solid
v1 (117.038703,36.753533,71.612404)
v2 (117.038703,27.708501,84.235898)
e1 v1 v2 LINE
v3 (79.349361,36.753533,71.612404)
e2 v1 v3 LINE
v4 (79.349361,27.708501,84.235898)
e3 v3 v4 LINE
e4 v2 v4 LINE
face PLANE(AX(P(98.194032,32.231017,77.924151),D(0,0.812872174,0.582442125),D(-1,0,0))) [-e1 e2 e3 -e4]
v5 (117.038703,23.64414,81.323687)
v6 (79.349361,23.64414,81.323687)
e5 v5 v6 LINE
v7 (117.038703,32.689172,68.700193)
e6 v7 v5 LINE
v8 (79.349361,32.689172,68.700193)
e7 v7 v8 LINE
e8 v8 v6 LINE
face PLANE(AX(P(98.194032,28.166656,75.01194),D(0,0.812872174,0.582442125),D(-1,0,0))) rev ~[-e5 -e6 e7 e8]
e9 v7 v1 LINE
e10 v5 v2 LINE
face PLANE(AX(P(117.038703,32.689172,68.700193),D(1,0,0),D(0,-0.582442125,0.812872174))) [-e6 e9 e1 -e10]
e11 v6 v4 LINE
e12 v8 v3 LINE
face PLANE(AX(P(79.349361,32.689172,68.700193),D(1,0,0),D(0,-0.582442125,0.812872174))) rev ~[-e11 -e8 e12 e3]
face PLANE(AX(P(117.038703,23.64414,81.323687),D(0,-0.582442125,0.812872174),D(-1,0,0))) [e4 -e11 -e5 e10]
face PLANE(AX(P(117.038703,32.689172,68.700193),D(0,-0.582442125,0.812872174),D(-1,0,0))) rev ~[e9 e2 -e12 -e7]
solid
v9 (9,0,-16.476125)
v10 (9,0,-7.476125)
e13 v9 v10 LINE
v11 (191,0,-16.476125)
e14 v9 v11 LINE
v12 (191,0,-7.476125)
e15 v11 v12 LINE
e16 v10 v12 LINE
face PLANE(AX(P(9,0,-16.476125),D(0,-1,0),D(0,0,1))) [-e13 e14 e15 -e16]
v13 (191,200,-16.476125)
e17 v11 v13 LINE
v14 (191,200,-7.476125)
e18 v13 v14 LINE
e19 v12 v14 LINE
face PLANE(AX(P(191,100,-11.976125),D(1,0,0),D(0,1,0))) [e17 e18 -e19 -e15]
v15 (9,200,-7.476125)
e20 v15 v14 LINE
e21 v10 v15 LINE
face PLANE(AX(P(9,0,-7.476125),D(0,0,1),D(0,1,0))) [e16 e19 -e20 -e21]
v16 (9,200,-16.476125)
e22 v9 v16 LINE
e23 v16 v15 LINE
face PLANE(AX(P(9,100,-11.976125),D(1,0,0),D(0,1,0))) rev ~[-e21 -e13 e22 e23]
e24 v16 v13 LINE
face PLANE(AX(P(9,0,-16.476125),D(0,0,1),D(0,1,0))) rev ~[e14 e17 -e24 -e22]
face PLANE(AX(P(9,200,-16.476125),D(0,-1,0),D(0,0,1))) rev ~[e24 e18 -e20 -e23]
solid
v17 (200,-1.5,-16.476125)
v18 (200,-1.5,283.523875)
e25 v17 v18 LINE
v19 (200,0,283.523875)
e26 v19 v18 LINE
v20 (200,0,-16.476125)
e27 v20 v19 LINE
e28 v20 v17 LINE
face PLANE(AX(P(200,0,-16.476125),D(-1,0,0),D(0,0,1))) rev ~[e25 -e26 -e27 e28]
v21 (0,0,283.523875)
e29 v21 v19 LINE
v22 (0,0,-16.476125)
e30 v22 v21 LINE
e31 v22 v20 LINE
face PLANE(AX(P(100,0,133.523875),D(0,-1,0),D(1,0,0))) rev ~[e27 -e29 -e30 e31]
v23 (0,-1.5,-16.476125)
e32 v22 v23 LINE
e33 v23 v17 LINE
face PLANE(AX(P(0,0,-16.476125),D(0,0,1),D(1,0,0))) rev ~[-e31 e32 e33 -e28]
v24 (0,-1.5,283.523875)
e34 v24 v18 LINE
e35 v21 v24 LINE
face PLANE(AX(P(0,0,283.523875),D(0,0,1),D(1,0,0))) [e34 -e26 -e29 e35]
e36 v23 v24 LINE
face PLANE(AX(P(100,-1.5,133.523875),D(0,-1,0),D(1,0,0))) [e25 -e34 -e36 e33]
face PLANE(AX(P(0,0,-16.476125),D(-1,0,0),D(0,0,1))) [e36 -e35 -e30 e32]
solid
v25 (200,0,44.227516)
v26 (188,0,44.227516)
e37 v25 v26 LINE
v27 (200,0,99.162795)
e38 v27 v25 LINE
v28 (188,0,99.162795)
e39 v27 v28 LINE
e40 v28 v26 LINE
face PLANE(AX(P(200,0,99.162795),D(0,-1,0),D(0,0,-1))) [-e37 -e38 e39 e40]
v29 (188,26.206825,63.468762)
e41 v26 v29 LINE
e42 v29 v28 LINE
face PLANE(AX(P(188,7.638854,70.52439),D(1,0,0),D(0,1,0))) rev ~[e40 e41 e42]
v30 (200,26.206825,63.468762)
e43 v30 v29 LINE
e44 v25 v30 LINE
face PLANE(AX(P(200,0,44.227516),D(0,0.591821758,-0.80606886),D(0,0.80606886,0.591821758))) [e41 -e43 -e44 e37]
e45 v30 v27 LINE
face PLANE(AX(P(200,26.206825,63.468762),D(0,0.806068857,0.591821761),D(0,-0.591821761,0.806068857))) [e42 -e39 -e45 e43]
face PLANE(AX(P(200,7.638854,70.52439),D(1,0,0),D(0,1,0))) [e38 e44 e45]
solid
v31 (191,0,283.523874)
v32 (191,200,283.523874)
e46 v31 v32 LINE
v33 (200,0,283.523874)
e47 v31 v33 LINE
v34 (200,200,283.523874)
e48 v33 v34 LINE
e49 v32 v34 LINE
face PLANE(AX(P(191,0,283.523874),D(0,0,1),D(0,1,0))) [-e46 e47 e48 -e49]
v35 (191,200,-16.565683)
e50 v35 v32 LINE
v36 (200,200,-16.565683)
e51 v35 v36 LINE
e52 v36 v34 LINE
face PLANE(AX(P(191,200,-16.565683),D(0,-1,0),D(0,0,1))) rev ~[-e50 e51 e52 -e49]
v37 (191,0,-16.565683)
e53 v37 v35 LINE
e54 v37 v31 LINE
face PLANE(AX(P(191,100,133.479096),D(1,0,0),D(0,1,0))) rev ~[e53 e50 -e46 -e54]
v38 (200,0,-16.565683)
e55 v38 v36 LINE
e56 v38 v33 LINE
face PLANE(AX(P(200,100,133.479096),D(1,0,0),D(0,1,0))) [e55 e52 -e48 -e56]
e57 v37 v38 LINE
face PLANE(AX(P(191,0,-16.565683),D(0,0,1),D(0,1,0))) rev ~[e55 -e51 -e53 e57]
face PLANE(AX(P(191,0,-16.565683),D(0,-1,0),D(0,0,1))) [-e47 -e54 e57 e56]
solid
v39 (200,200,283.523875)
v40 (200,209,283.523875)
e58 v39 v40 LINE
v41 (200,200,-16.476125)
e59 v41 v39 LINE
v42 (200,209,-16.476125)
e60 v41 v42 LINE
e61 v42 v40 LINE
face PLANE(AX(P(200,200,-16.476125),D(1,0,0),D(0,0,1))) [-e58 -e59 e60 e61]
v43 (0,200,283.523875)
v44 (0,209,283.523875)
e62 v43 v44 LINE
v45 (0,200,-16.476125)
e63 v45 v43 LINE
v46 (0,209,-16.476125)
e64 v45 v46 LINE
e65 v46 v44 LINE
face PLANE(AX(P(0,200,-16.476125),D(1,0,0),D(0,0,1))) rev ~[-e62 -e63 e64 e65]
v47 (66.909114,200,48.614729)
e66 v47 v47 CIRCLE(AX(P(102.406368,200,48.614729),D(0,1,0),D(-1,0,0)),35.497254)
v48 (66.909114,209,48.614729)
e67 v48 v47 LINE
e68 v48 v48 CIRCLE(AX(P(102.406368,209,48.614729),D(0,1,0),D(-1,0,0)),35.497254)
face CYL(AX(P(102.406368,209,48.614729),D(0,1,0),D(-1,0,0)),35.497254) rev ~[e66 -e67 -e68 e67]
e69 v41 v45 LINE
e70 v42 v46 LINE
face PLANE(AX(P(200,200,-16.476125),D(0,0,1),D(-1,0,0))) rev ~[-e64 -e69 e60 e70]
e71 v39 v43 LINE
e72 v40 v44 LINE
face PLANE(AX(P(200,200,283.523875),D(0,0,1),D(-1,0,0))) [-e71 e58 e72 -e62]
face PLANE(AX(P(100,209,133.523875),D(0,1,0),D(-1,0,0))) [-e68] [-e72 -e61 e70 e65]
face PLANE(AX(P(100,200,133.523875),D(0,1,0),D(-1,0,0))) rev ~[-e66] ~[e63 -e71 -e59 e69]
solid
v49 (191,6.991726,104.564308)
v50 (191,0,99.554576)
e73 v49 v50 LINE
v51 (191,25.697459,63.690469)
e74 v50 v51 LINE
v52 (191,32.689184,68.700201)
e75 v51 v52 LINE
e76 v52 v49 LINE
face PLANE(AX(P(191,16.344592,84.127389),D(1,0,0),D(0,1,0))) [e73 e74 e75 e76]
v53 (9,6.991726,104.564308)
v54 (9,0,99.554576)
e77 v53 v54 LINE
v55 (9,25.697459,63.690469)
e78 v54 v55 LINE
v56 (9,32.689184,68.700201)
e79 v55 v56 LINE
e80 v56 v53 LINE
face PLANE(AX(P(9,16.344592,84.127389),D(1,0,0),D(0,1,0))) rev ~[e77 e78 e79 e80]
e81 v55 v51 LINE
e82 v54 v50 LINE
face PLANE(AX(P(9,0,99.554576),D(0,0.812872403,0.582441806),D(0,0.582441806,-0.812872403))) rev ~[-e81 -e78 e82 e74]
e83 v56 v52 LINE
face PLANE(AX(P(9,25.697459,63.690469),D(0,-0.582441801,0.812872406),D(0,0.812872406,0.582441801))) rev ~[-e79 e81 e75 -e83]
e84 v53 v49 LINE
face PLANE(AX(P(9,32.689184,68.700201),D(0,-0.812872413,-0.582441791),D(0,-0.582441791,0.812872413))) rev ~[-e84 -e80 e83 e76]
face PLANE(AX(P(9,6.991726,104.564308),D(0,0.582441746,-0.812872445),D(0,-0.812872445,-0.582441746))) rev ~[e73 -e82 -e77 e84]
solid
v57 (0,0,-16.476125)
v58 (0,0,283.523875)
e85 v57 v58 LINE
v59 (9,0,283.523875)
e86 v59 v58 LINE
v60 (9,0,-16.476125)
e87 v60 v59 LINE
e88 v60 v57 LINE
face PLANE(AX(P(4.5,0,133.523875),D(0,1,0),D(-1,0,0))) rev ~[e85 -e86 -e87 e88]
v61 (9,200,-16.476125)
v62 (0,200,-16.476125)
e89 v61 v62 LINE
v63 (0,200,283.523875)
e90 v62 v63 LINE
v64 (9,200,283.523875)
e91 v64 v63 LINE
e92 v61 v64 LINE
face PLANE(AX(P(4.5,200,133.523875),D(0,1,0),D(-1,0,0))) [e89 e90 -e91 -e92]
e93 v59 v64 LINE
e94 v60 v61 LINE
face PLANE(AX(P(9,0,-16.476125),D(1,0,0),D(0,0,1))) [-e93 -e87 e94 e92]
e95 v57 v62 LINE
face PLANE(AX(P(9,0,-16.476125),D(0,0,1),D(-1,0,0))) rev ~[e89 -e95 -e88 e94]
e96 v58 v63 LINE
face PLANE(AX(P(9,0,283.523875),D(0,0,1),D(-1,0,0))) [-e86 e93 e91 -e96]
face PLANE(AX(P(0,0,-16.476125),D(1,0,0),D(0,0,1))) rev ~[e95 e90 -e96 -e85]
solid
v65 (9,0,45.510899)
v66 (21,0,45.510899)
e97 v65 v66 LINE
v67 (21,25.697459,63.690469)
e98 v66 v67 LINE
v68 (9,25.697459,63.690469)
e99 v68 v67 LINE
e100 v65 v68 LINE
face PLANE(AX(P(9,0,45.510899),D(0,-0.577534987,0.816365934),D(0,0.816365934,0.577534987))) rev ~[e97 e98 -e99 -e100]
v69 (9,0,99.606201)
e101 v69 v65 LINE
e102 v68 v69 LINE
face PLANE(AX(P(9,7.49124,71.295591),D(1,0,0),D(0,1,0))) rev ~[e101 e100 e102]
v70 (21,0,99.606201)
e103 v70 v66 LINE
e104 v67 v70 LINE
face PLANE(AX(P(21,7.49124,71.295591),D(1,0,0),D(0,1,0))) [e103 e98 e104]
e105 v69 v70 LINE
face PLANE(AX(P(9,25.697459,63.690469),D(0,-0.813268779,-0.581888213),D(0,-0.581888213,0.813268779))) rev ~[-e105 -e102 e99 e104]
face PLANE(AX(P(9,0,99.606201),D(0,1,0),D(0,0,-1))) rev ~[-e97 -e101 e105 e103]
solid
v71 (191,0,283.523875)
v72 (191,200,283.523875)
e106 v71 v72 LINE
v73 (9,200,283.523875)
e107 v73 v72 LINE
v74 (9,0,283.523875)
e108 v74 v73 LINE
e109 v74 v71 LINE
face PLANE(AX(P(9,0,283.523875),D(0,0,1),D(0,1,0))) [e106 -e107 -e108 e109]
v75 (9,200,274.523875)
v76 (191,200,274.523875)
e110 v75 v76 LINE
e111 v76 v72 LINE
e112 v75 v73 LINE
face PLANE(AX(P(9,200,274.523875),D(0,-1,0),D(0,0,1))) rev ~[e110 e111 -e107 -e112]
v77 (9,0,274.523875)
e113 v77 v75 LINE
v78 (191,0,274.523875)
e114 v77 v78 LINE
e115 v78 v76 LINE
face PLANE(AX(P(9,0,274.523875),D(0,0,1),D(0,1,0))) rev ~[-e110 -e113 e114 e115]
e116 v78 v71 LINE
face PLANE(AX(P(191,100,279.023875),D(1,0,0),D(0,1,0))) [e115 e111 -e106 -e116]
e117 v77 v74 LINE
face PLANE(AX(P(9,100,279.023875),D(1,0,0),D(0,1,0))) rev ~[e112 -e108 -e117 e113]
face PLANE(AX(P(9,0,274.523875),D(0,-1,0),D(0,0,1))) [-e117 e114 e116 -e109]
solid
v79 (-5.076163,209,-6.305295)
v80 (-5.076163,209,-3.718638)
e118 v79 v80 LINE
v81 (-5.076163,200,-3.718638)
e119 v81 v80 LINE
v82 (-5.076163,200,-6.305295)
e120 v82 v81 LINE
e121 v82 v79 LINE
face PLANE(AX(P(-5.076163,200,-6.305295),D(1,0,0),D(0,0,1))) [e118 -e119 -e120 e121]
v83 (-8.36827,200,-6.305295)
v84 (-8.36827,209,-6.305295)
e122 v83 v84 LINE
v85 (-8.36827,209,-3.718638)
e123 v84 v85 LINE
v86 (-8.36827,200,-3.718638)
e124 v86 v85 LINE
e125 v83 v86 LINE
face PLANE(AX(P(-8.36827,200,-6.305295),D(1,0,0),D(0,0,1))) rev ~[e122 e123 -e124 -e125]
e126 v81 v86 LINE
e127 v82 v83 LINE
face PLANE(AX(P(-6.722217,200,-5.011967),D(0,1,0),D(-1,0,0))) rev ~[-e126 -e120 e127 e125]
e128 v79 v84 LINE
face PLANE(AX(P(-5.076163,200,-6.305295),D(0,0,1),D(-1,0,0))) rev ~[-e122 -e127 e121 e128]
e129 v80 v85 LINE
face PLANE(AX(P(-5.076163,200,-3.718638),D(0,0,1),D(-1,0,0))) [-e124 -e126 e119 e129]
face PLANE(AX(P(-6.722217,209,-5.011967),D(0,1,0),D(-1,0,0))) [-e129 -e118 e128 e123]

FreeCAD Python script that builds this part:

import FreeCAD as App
import Part
import Sketcher
Q = App.Units.Quantity


def add_polygon(sketch, points):
    """Adds a closed chain of lines whose ends are joined by coincident constraints."""
    first, n = sketch.GeometryCount, len(points)
    for a, b in zip(points, points[1:] + points[:1]):
        sketch.addGeometry(Part.LineSegment(App.Vector(*a, 0), App.Vector(*b, 0)), False)
    for i in range(n):
        sketch.addConstraint(Sketcher.Constraint("Coincident", first + i, 2, first + (i + 1) % n, 1))

doc = App.newDocument("Part")
body = doc.addObject("PartDesign::Body", "Body")

sketch1 = body.newObject("Sketcher::SketchObject", "Sketch")
sketch1.AttachmentSupport = (doc.getObject("XZ_Plane"), [""])
sketch1.MapMode = "FlatFace"
add_polygon(sketch1, [(0, 284), (0, -16), (200, -16), (200, 284)])
sketch1.addConstraint([
    Sketcher.Constraint("Vertical", 0),
    Sketcher.Constraint("Horizontal", 1),
    Sketcher.Constraint("Vertical", 2),
    Sketcher.Constraint("Horizontal", 3),
    Sketcher.Constraint("PointOnObject", 0, 2, -2),
    Sketcher.Constraint("DistanceX", 1, 1, 1, 2, Q("200 mm")),
    Sketcher.Constraint("DistanceY", 0, 2, 0, 1, Q("300 mm")),
    Sketcher.Constraint("DistanceY", 0, 2, -1, 1, Q("16.476125 mm")),
])
pad1 = body.newObject("PartDesign::Pad", "Pad")
pad1.Profile = sketch1
pad1.Length = 1.5
body2 = doc.addObject("PartDesign::Body", "Body001")

sketch2 = body2.newObject("Sketcher::SketchObject", "Sketch001")
sketch2.AttachmentSupport = (doc.getObject("XZ_Plane001"), [""])
sketch2.MapMode = "FlatFace"
add_polygon(sketch2, [(9, 284), (9, -16), (0, -16), (0, 284)])
sketch2.addConstraint([
    Sketcher.Constraint("Vertical", 0),
    Sketcher.Constraint("Horizontal", 1),
    Sketcher.Constraint("Vertical", 2),
    Sketcher.Constraint("Horizontal", 3),
    Sketcher.Constraint("PointOnObject", 1, 2, -2),
    Sketcher.Constraint("DistanceX", 1, 2, 1, 1, Q("9 mm")),
    Sketcher.Constraint("DistanceY", 0, 2, 0, 1, Q("300 mm")),
    Sketcher.Constraint("DistanceY", 0, 2, -1, 1, Q("16.476125 mm")),
])
pad2 = body2.newObject("PartDesign::Pad", "Pad001")
pad2.Profile = sketch2
pad2.Length = 200
pad2.Reversed = True
body3 = doc.addObject("PartDesign::Body", "Body002")

sketch3 = body3.newObject("Sketcher::SketchObject", "Sketch002")
sketch3.AttachmentSupport = (doc.getObject("YZ_Plane002"), [""])
sketch3.MapMode = "FlatFace"
sketch3.AttachmentOffset = App.Placement(App.Vector(0, 0, 9), App.Rotation())
add_polygon(sketch3, [(26, 64), (0, 100), (0, 46)])
sketch3.addConstraint([
    Sketcher.Constraint("Vertical", 1),
    Sketcher.Constraint("PointOnObject", 0, 2, -2),
    Sketcher.Constraint("DistanceY", 1, 2, 1, 1, Q("54.095302 mm")),
    Sketcher.Constraint("DistanceY", -1, 1, 0, 2, Q("99.606201 mm")),
    Sketcher.Constraint("DistanceX", -1, 1, 2, 2, Q("25.697459 mm")),
    Sketcher.Constraint("DistanceY", -1, 1, 2, 2, Q("63.690469 mm")),
])
pad3 = body3.newObject("PartDesign::Pad", "Pad002")
pad3.Profile = sketch3
pad3.Length = 12
body4 = doc.addObject("PartDesign::Body", "Body003")

sketch4 = body4.newObject("Sketcher::SketchObject", "Sketch003")
sketch4.AttachmentSupport = (doc.getObject("YZ_Plane003"), [""])
sketch4.MapMode = "FlatFace"
sketch4.AttachmentOffset = App.Placement(App.Vector(0, 0, 9), App.Rotation())
add_polygon(sketch4, [(0, 100), (26, 64), (33, 69), (7, 105)])
sketch4.addConstraint([
    Sketcher.Constraint("PointOnObject", 3, 2, -2),
    Sketcher.Constraint("Perpendicular", 0, 1),
    Sketcher.Constraint("Perpendicular", 1, 2),
    Sketcher.Constraint("Perpendicular", 2, 3),
    Sketcher.Constraint("DistanceY", -1, 1, 1, 2, Q("68.700201 mm")),
    Sketcher.Constraint("Distance", 3, Q("8.601258 mm")),
    Sketcher.Constraint("DistanceX", -1, 1, 0, 2, Q("25.697459 mm")),
    Sketcher.Constraint("DistanceY", -1, 1, 0, 2, Q("63.690469 mm")),
])
pad4 = body4.newObject("PartDesign::Pad", "Pad003")
pad4.Profile = sketch4
pad4.Length = 182
body5 = doc.addObject("PartDesign::Body", "Body004")

sketch5 = body5.newObject("Sketcher::SketchObject", "Sketch004")
sketch5.Placement = App.Placement(App.Vector(0, 54.125926, 38.782472), App.Rotation(App.Vector(-1, 0, 0), App.Vector(0, -0.582442125, 0.812872174), App.Vector(0, 0.812872174, 0.582442125), "ZXY"))
add_polygon(sketch5, [(-117, 52), (-117, 37), (-79, 37), (-79, 52)])
sketch5.addConstraint([
    Sketcher.Constraint("Vertical", 0),
    Sketcher.Constraint("Horizontal", 1),
    Sketcher.Constraint("Vertical", 2),
    Sketcher.Constraint("Horizontal", 3),
    Sketcher.Constraint("DistanceX", 1, 1, 1, 2, Q("37.689343 mm")),
    Sketcher.Constraint("DistanceY", 0, 2, 0, 1, Q("15.529495 mm")),
    Sketcher.Constraint("DistanceY", -1, 1, 0, 2, Q("36.804952 mm")),
    Sketcher.Constraint("DistanceX", 1, 2, -1, 1, Q("79.349361 mm")),
])
pad5 = body5.newObject("PartDesign::Pad", "Pad004")
pad5.Profile = sketch5
pad5.Length = 5
body6 = doc.addObject("PartDesign::Body", "Body005")

sketch6 = body6.newObject("Sketcher::SketchObject", "Sketch005")
sketch6.AttachmentSupport = (doc.getObject("YZ_Plane005"), [""])
sketch6.MapMode = "FlatFace"
sketch6.AttachmentOffset = App.Placement(App.Vector(0, 0, 9), App.Rotation())
add_polygon(sketch6, [(0, 284), (0, 275), (200, 275), (200, 284)])
sketch6.addConstraint([
    Sketcher.Constraint("Vertical", 0),
    Sketcher.Constraint("Horizontal", 1),
    Sketcher.Constraint("Vertical", 2),
    Sketcher.Constraint("Horizontal", 3),
    Sketcher.Constraint("PointOnObject", 0, 2, -2),
    Sketcher.Constraint("DistanceX", 1, 1, 1, 2, Q("200 mm")),
    Sketcher.Constraint("DistanceY", 0, 2, 0, 1, Q("9 mm")),
    Sketcher.Constraint("DistanceY", -1, 1, 0, 2, Q("274.523875 mm")),
])
pad6 = body6.newObject("PartDesign::Pad", "Pad005")
pad6.Profile = sketch6
pad6.Length = 182
body7 = doc.addObject("PartDesign::Body", "Body006")

sketch7 = body7.newObject("Sketcher::SketchObject", "Sketch006")
sketch7.AttachmentSupport = (doc.getObject("YZ_Plane006"), [""])
sketch7.MapMode = "FlatFace"
sketch7.AttachmentOffset = App.Placement(App.Vector(0, 0, 9), App.Rotation())
add_polygon(sketch7, [(0, -7), (0, -16), (200, -16), (200, -7)])
sketch7.addConstraint([
    Sketcher.Constraint("Vertical", 0),
    Sketcher.Constraint("Horizontal", 1),
    Sketcher.Constraint("Vertical", 2),
    Sketcher.Constraint("Horizontal", 3),
    Sketcher.Constraint("PointOnObject", 0, 2, -2),
    Sketcher.Constraint("DistanceX", 1, 1, 1, 2, Q("200 mm")),
    Sketcher.Constraint("DistanceY", 0, 2, 0, 1, Q("9 mm")),
    Sketcher.Constraint("DistanceY", 0, 2, -1, 1, Q("16.476125 mm")),
])
pad7 = body7.newObject("PartDesign::Pad", "Pad006")
pad7.Profile = sketch7
pad7.Length = 182
body8 = doc.addObject("PartDesign::Body", "Body007")

sketch8 = body8.newObject("Sketcher::SketchObject", "Sketch007")
sketch8.AttachmentSupport = (doc.getObject("YZ_Plane007"), [""])
sketch8.MapMode = "FlatFace"
sketch8.AttachmentOffset = App.Placement(App.Vector(0, 0, 191), App.Rotation())
add_polygon(sketch8, [(0, 284), (0, -17), (200, -17), (200, 284)])
sketch8.addConstraint([
    Sketcher.Constraint("Vertical", 0),
    Sketcher.Constraint("Horizontal", 1),
    Sketcher.Constraint("Vertical", 2),
    Sketcher.Constraint("Horizontal", 3),
    Sketcher.Constraint("PointOnObject", 0, 2, -2),
    Sketcher.Constraint("DistanceX", 1, 1, 1, 2, Q("200 mm")),
    Sketcher.Constraint("DistanceY", 0, 2, 0, 1, Q("300.089557 mm")),
    Sketcher.Constraint("DistanceY", 0, 2, -1, 1, Q("16.565683 mm")),
])
pad8 = body8.newObject("PartDesign::Pad", "Pad007")
pad8.Profile = sketch8
pad8.Length = 9
body9 = doc.addObject("PartDesign::Body", "Body008")
body9.AllowCompound = True

sketch9 = body9.newObject("Sketcher::SketchObject", "Sketch008")
sketch9.AttachmentSupport = (doc.getObject("XZ_Plane008"), [""])
sketch9.MapMode = "FlatFace"
sketch9.AttachmentOffset = App.Placement(App.Vector(0, 0, -200), App.Rotation())
add_polygon(sketch9, [(200, 283.5), (200, -16.5), (0, -16.5), (0, 283.5)])
add_polygon(sketch9, [(-5.1, -3.7), (-5.1, -6.3), (-8.4, -6.3), (-8.4, -3.7)])
sketch9.addConstraint([
    Sketcher.Constraint("Vertical", 0),
    Sketcher.Constraint("Horizontal", 1),
    Sketcher.Constraint("Vertical", 2),
    Sketcher.Constraint("Horizontal", 3),
    Sketcher.Constraint("Vertical", 4),
    Sketcher.Constraint("Horizontal", 5),
    Sketcher.Constraint("Vertical", 6),
    Sketcher.Constraint("Horizontal", 7),
    Sketcher.Constraint("PointOnObject", 1, 2, -2),
    Sketcher.Constraint("DistanceX", 1, 2, 1, 1, Q("200 mm")),
    Sketcher.Constraint("DistanceY", 0, 2, 0, 1, Q("300 mm")),
    Sketcher.Constraint("DistanceX", 5, 2, 5, 1, Q("3.292107 mm")),
    Sketcher.Constraint("DistanceY", 4, 2, 4, 1, Q("2.586657 mm")),
    Sketcher.Constraint("DistanceX", 5, 2, -1, 1, Q("8.36827 mm")),
    Sketcher.Constraint("DistanceY", 6, 2, -1, 1, Q("3.718638 mm")),
    Sketcher.Constraint("DistanceY", 1, 2, 4, 2, Q("10.170829 mm")),
])
pad9 = body9.newObject("PartDesign::Pad", "Pad008")
pad9.Profile = sketch9
pad9.Length = 9
pad9.Reversed = True

sketch10 = body9.newObject("Sketcher::SketchObject", "Sketch009")
sketch10.AttachmentSupport = (doc.getObject("XZ_Plane008"), [""])
sketch10.MapMode = "FlatFace"
sketch10.AttachmentOffset = App.Placement(App.Vector(0, 0, -209), App.Rotation())
sketch10.addGeometry(Part.Circle(App.Vector(102, 49, 0), App.Vector(0, 0, 1), 35), False)
sketch10.addConstraint([
    Sketcher.Constraint("Diameter", 0, Q("70.994508 mm")),
    Sketcher.Constraint("DistanceX", -1, 1, 0, 3, Q("102.406368 mm")),
    Sketcher.Constraint("DistanceY", -1, 1, 0, 3, Q("48.614729 mm")),
])
pocket1 = body9.newObject("PartDesign::Pocket", "Pocket")
pocket1.Profile = sketch10
pocket1.Length = 9
pocket1.Reversed = True
body10 = doc.addObject("PartDesign::Body", "Body009")

sketch11 = body10.newObject("Sketcher::SketchObject", "Sketch010")
sketch11.AttachmentSupport = (doc.getObject("YZ_Plane009"), [""])
sketch11.MapMode = "FlatFace"
sketch11.AttachmentOffset = App.Placement(App.Vector(0, 0, 200), App.Rotation())
add_polygon(sketch11, [(26, 63), (0, 99), (0, 44)])
sketch11.addConstraint([
    Sketcher.Constraint("Vertical", 1),
    Sketcher.Constraint("PointOnObject", 0, 2, -2),
    Sketcher.Constraint("Perpendicular", 0, 2),
    Sketcher.Constraint("DistanceY", 1, 2, 1, 1, Q("54.935279 mm")),
    Sketcher.Constraint("DistanceY", -1, 1, 2, 2, Q("63.468762 mm")),
    Sketcher.Constraint("Distance", 0, Q("44.281618 mm")),
])
pad10 = body10.newObject("PartDesign::Pad", "Pad009")
pad10.Profile = sketch11
pad10.Length = 12
pad10.Reversed = True

doc.recompute()
